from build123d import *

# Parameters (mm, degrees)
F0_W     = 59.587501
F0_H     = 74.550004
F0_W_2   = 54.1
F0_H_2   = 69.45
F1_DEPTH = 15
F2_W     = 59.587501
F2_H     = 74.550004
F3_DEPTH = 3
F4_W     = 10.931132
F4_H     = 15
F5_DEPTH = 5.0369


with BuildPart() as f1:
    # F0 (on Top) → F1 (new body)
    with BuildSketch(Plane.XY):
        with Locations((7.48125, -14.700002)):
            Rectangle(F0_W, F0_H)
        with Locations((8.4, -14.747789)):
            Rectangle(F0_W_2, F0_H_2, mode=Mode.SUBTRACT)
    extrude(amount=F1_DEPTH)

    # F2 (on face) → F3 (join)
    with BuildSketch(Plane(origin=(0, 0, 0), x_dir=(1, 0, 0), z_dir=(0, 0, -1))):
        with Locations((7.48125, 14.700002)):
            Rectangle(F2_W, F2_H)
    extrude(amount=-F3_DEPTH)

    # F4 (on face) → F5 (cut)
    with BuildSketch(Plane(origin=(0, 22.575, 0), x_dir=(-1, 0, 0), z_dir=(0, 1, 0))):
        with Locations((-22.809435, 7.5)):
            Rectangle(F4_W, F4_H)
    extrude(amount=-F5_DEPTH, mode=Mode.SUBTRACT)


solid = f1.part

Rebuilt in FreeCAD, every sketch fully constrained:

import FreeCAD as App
import Part
import Sketcher
Q = App.Units.Quantity


def add_polygon(sketch, points):
    """Adds a closed chain of lines whose ends are joined by coincident constraints."""
    first, n = sketch.GeometryCount, len(points)
    for a, b in zip(points, points[1:] + points[:1]):
        sketch.addGeometry(Part.LineSegment(App.Vector(*a, 0), App.Vector(*b, 0)), False)
    for i in range(n):
        sketch.addConstraint(Sketcher.Constraint("Coincident", first + i, 2, first + (i + 1) % n, 1))

doc = App.newDocument("Part")
body = doc.addObject("PartDesign::Body", "Body")

# Sketch on XY plane
sketch1 = body.newObject("Sketcher::SketchObject", "Sketch")
sketch1.AttachmentSupport = (doc.getObject("XY_Plane"), [""])
sketch1.MapMode = "FlatFace"
add_polygon(sketch1, [(-22, 23), (-22, -52), (37, -52), (37, 23)])  # lines 0-3
add_polygon(sketch1, [(35, -49), (-19, -49), (-19, 20), (35, 20)])  # lines 4-7
sketch1.addConstraint([
    Sketcher.Constraint("Vertical", 0),
    Sketcher.Constraint("Horizontal", 1),
    Sketcher.Constraint("Vertical", 2),
    Sketcher.Constraint("Horizontal", 3),
    Sketcher.Constraint("Horizontal", 4),
    Sketcher.Constraint("Vertical", 5),
    Sketcher.Constraint("Horizontal", 6),
    Sketcher.Constraint("Vertical", 7),
    Sketcher.Constraint("DistanceX", 4, 2, 4, 1, Q("54.1 mm")),
    Sketcher.Constraint("DistanceY", 5, 1, 5, 2, Q("69.45 mm")),
    Sketcher.Constraint("DistanceX", 4, 2, -1, 1, Q("18.65 mm")),
    Sketcher.Constraint("DistanceX", 1, 1, 1, 2, Q("59.587501 mm")),
    Sketcher.Constraint("DistanceX", -1, 1, 1, 2, Q("37.275 mm")),
    Sketcher.Constraint("DistanceY", -1, 1, 2, 2, Q("22.575 mm")),
    Sketcher.Constraint("DistanceY", 0, 2, 0, 1, Q("74.550004 mm")),
    Sketcher.Constraint("DistanceY", 4, 2, -1, 1, Q("49.472789 mm")),
])
pad1 = body.newObject("PartDesign::Pad", "Pad")
pad1.Profile = sketch1
pad1.Length = 15

# Sketch on XY plane
sketch2 = body.newObject("Sketcher::SketchObject", "Sketch001")
sketch2.AttachmentSupport = (doc.getObject("XY_Plane"), [""])
sketch2.MapMode = "FlatFace"
add_polygon(sketch2, [(-22, -52), (-22, 23), (37, 23), (37, -52)])  # lines 0-3
sketch2.addConstraint([
    Sketcher.Constraint("Vertical", 0),
    Sketcher.Constraint("Horizontal", 1),
    Sketcher.Constraint("Vertical", 2),
    Sketcher.Constraint("Horizontal", 3),
    Sketcher.Constraint("DistanceX", 1, 1, 1, 2, Q("59.587501 mm")),
    Sketcher.Constraint("DistanceY", -1, 1, 0, 2, Q("22.575 mm")),
    Sketcher.Constraint("DistanceX", -1, 1, 1, 2, Q("37.275 mm")),
    Sketcher.Constraint("DistanceY", 0, 1, 0, 2, Q("74.550004 mm")),
])
pad2 = body.newObject("PartDesign::Pad", "Pad001")
pad2.Profile = sketch2
pad2.Length = 3

# Sketch on XZ plane
sketch3 = body.newObject("Sketcher::SketchObject", "Sketch002")
sketch3.AttachmentSupport = (doc.getObject("XZ_Plane"), [""])
sketch3.MapMode = "FlatFace"
sketch3.AttachmentOffset = App.Placement(App.Vector(0, 0, -22.575), App.Rotation())
add_polygon(sketch3, [(28, 15), (28, 0), (17, 0), (17, 15)])  # lines 0-3
sketch3.addConstraint([
    Sketcher.Constraint("Vertical", 0),
    Sketcher.Constraint("Horizontal", 1),
    Sketcher.Constraint("Vertical", 2),
    Sketcher.Constraint("Horizontal", 3),
    Sketcher.Constraint("PointOnObject", 0, 2, -1),
    Sketcher.Constraint("DistanceY", 0, 2, 0, 1, Q("15 mm")),
    Sketcher.Constraint("DistanceX", -1, 1, 0, 2, Q("28.275001 mm")),
    Sketcher.Constraint("DistanceX", 1, 2, 1, 1, Q("10.931132 mm")),
])
pocket1 = body.newObject("PartDesign::Pocket", "Pocket")
pocket1.Profile = sketch3
pocket1.Length = 5.0369
pocket1.Reversed = True

doc.recompute()
